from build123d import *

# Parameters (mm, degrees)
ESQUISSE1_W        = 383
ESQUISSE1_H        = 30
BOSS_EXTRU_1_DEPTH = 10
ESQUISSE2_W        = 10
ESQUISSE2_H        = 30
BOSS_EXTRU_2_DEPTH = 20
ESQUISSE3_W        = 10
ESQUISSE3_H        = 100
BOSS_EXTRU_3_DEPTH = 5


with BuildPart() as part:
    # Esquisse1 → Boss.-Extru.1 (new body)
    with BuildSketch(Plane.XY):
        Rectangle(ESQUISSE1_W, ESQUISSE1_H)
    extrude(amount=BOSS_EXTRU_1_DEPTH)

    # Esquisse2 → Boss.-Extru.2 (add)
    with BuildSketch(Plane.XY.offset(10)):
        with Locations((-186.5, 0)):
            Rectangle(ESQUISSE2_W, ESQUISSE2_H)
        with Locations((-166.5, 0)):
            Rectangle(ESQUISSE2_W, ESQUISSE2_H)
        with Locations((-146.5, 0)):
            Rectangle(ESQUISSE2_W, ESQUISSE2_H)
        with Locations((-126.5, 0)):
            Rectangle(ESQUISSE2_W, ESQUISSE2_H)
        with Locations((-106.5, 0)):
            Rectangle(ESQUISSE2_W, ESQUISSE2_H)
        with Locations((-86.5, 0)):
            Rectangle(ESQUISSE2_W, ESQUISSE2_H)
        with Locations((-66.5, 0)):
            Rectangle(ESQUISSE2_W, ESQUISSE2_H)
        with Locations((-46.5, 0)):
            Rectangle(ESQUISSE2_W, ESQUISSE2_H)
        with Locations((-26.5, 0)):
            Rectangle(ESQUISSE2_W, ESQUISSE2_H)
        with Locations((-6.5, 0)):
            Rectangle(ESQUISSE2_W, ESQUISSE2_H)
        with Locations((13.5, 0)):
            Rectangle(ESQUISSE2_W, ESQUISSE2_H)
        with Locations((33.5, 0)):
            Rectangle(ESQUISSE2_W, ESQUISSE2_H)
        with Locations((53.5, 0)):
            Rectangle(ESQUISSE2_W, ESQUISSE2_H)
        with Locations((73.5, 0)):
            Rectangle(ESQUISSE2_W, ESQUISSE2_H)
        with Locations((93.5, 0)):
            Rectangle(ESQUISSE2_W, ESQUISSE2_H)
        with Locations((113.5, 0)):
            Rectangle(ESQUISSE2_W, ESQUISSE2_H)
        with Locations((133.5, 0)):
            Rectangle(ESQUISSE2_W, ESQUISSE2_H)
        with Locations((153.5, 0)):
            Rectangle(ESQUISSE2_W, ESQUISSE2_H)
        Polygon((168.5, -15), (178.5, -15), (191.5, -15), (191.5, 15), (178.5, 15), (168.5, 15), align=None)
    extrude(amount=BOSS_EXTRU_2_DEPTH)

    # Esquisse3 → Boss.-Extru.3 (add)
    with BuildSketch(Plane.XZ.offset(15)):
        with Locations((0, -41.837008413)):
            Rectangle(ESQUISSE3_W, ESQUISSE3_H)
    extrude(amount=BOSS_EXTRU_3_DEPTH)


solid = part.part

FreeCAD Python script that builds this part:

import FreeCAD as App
import Part
import Sketcher
from FreeCAD import Vector
Q = App.Units.Quantity

doc = App.newDocument("Part")
params = doc.addObject("Spreadsheet::Sheet", "Params")
for row, (alias, value) in enumerate([
    ("sketch1_width", "383 mm"),
    ("sketch1_height", "30 mm"),
    ("pad1_length", "10 mm"),
    ("sketch2_width", "10 mm"),
    ("sketch2_width2", "23 mm"),
    ("sketch2_height", "30 mm"),
    ("pad2_length", "20 mm"),
    ("sketch3_width", "10 mm"),
    ("sketch3_height", "100 mm"),
    ("pad3_length", "5 mm"),
], start=1):
    params.set(f"A{row}", alias)
    params.set(f"B{row}", "=" + value)
    params.setAlias(f"B{row}", alias)

body = doc.addObject("PartDesign::Body", "Body")

# Sketch on XY plane
sketch1 = body.newObject("Sketcher::SketchObject", "Sketch")
sketch1.AttachmentSupport = (doc.getObject("XY_Plane"), [""])
sketch1.MapMode = "FlatFace"
sketch1.addGeometry([
    Part.LineSegment(Vector(-192, 15, 0), Vector(-192, -15, 0)),
    Part.LineSegment(Vector(-192, -15, 0), Vector(192, -15, 0)),
    Part.LineSegment(Vector(192, -15, 0), Vector(192, 15, 0)),
    Part.LineSegment(Vector(192, 15, 0), Vector(-192, 15, 0)),
], False)
sketch1.addConstraint([
    Sketcher.Constraint("Coincident", 0, 2, 1, 1),
    Sketcher.Constraint("Coincident", 1, 2, 2, 1),
    Sketcher.Constraint("Coincident", 2, 2, 3, 1),
    Sketcher.Constraint("Coincident", 3, 2, 0, 1),
    Sketcher.Constraint("Vertical", 0),
    Sketcher.Constraint("Horizontal", 1),
    Sketcher.Constraint("Vertical", 2),
    Sketcher.Constraint("Horizontal", 3),
    Sketcher.Constraint("Symmetric", 0, 2, 2, 2, -1, 1),
    Sketcher.Constraint("DistanceX", 1, 1, 1, 2, Q("383 mm")),
    Sketcher.Constraint("DistanceY", 0, 2, 0, 1, Q("30 mm")),
])
sketch1.setExpression("Constraints[9]", "Params.sketch1_width")
sketch1.setExpression("Constraints[10]", "Params.sketch1_height")
pad1 = body.newObject("PartDesign::Pad", "Pad")
pad1.Profile = sketch1
pad1.setExpression("Length", "Params.pad1_length")

# Sketch on XY plane
sketch2 = body.newObject("Sketcher::SketchObject", "Sketch001")
sketch2.AttachmentSupport = (doc.getObject("XY_Plane"), [""])
sketch2.MapMode = "FlatFace"
sketch2.AttachmentOffset = App.Placement(Vector(0, 0, 10), App.Rotation())
sketch2.addGeometry([
    Part.LineSegment(Vector(-192, 15, 0), Vector(-192, -15, 0)),  # 0
    Part.LineSegment(Vector(-192, -15, 0), Vector(-182, -15, 0)),  # 1
    Part.LineSegment(Vector(-182, -15, 0), Vector(-182, 15, 0)),  # 2
    Part.LineSegment(Vector(-182, 15, 0), Vector(-192, 15, 0)),  # 3
    Part.LineSegment(Vector(-172, 15, 0), Vector(-172, -15, 0)),  # 4
    Part.LineSegment(Vector(-172, -15, 0), Vector(-162, -15, 0)),  # 5
    Part.LineSegment(Vector(-162, -15, 0), Vector(-162, 15, 0)),  # 6
    Part.LineSegment(Vector(-162, 15, 0), Vector(-172, 15, 0)),  # 7
    Part.LineSegment(Vector(-152, 15, 0), Vector(-152, -15, 0)),  # 8
    Part.LineSegment(Vector(-152, -15, 0), Vector(-142, -15, 0)),  # 9
    Part.LineSegment(Vector(-142, -15, 0), Vector(-142, 15, 0)),  # 10
    Part.LineSegment(Vector(-142, 15, 0), Vector(-152, 15, 0)),  # 11
    Part.LineSegment(Vector(-132, 15, 0), Vector(-132, -15, 0)),  # 12
    Part.LineSegment(Vector(-132, -15, 0), Vector(-122, -15, 0)),  # 13
    Part.LineSegment(Vector(-122, -15, 0), Vector(-122, 15, 0)),  # 14
    Part.LineSegment(Vector(-122, 15, 0), Vector(-132, 15, 0)),  # 15
    Part.LineSegment(Vector(-112, 15, 0), Vector(-112, -15, 0)),  # 16
    Part.LineSegment(Vector(-112, -15, 0), Vector(-102, -15, 0)),  # 17
    Part.LineSegment(Vector(-102, -15, 0), Vector(-102, 15, 0)),  # 18
    Part.LineSegment(Vector(-102, 15, 0), Vector(-112, 15, 0)),  # 19
    Part.LineSegment(Vector(-92, 15, 0), Vector(-92, -15, 0)),  # 20
    Part.LineSegment(Vector(-92, -15, 0), Vector(-82, -15, 0)),  # 21
    Part.LineSegment(Vector(-82, -15, 0), Vector(-82, 15, 0)),  # 22
    Part.LineSegment(Vector(-82, 15, 0), Vector(-92, 15, 0)),  # 23
    Part.LineSegment(Vector(-72, 15, 0), Vector(-72, -15, 0)),  # 24
    Part.LineSegment(Vector(-72, -15, 0), Vector(-62, -15, 0)),  # 25
    Part.LineSegment(Vector(-62, -15, 0), Vector(-62, 15, 0)),  # 26
    Part.LineSegment(Vector(-62, 15, 0), Vector(-72, 15, 0)),  # 27
    Part.LineSegment(Vector(-52, 15, 0), Vector(-52, -15, 0)),  # 28
    Part.LineSegment(Vector(-52, -15, 0), Vector(-42, -15, 0)),  # 29
    Part.LineSegment(Vector(-42, -15, 0), Vector(-42, 15, 0)),  # 30
    Part.LineSegment(Vector(-42, 15, 0), Vector(-52, 15, 0)),  # 31
    Part.LineSegment(Vector(-32, 15, 0), Vector(-32, -15, 0)),  # 32
    Part.LineSegment(Vector(-32, -15, 0), Vector(-22, -15, 0)),  # 33
    Part.LineSegment(Vector(-22, -15, 0), Vector(-22, 15, 0)),  # 34
    Part.LineSegment(Vector(-22, 15, 0), Vector(-32, 15, 0)),  # 35
    Part.LineSegment(Vector(-12, 15, 0), Vector(-12, -15, 0)),  # 36
    Part.LineSegment(Vector(-12, -15, 0), Vector(-2, -15, 0)),  # 37
    Part.LineSegment(Vector(-2, -15, 0), Vector(-2, 15, 0)),  # 38
    Part.LineSegment(Vector(-2, 15, 0), Vector(-12, 15, 0)),  # 39
    Part.LineSegment(Vector(8, 15, 0), Vector(8, -15, 0)),  # 40
    Part.LineSegment(Vector(8, -15, 0), Vector(18, -15, 0)),  # 41
    Part.LineSegment(Vector(18, -15, 0), Vector(18, 15, 0)),  # 42
    Part.LineSegment(Vector(18, 15, 0), Vector(8, 15, 0)),  # 43
    Part.LineSegment(Vector(28, 15, 0), Vector(28, -15, 0)),  # 44
    Part.LineSegment(Vector(28, -15, 0), Vector(38, -15, 0)),  # 45
    Part.LineSegment(Vector(38, -15, 0), Vector(38, 15, 0)),  # 46
    Part.LineSegment(Vector(38, 15, 0), Vector(28, 15, 0)),  # 47
    Part.LineSegment(Vector(48, 15, 0), Vector(48, -15, 0)),  # 48
    Part.LineSegment(Vector(48, -15, 0), Vector(58, -15, 0)),  # 49
    Part.LineSegment(Vector(58, -15, 0), Vector(58, 15, 0)),  # 50
    Part.LineSegment(Vector(58, 15, 0), Vector(48, 15, 0)),  # 51
    Part.LineSegment(Vector(68, 15, 0), Vector(68, -15, 0)),  # 52
    Part.LineSegment(Vector(68, -15, 0), Vector(78, -15, 0)),  # 53
    Part.LineSegment(Vector(78, -15, 0), Vector(78, 15, 0)),  # 54
    Part.LineSegment(Vector(78, 15, 0), Vector(68, 15, 0)),  # 55
    Part.LineSegment(Vector(88, 15, 0), Vector(88, -15, 0)),  # 56
    Part.LineSegment(Vector(88, -15, 0), Vector(98, -15, 0)),  # 57
    Part.LineSegment(Vector(98, -15, 0), Vector(98, 15, 0)),  # 58
    Part.LineSegment(Vector(98, 15, 0), Vector(88, 15, 0)),  # 59
    Part.LineSegment(Vector(108, 15, 0), Vector(108, -15, 0)),  # 60
    Part.LineSegment(Vector(108, -15, 0), Vector(118, -15, 0)),  # 61
    Part.LineSegment(Vector(118, -15, 0), Vector(118, 15, 0)),  # 62
    Part.LineSegment(Vector(118, 15, 0), Vector(108, 15, 0)),  # 63
    Part.LineSegment(Vector(128, 15, 0), Vector(128, -15, 0)),  # 64
    Part.LineSegment(Vector(128, -15, 0), Vector(138, -15, 0)),  # 65
    Part.LineSegment(Vector(138, -15, 0), Vector(138, 15, 0)),  # 66
    Part.LineSegment(Vector(138, 15, 0), Vector(128, 15, 0)),  # 67
    Part.LineSegment(Vector(148, 15, 0), Vector(148, -15, 0)),  # 68
    Part.LineSegment(Vector(148, -15, 0), Vector(158, -15, 0)),  # 69
    Part.LineSegment(Vector(158, -15, 0), Vector(158, 15, 0)),  # 70
    Part.LineSegment(Vector(158, 15, 0), Vector(148, 15, 0)),  # 71
    Part.LineSegment(Vector(168, -15, 0), Vector(192, -15, 0)),  # 72
    Part.LineSegment(Vector(192, -15, 0), Vector(192, 15, 0)),  # 73
    Part.LineSegment(Vector(192, 15, 0), Vector(168, 15, 0)),  # 74
    Part.LineSegment(Vector(168, 15, 0), Vector(168, -15, 0)),  # 75
], False)
sketch2.addConstraint([
    Sketcher.Constraint("Coincident", 0, 2, 1, 1),
    Sketcher.Constraint("Coincident", 1, 2, 2, 1),
    Sketcher.Constraint("Coincident", 2, 2, 3, 1),
    Sketcher.Constraint("Coincident", 3, 2, 0, 1),
    Sketcher.Constraint("Coincident", 4, 2, 5, 1),
    Sketcher.Constraint("Coincident", 5, 2, 6, 1),
    Sketcher.Constraint("Coincident", 6, 2, 7, 1),
    Sketcher.Constraint("Coincident", 7, 2, 4, 1),
    Sketcher.Constraint("Coincident", 8, 2, 9, 1),
    Sketcher.Constraint("Coincident", 9, 2, 10, 1),
    Sketcher.Constraint("Coincident", 10, 2, 11, 1),
    Sketcher.Constraint("Coincident", 11, 2, 8, 1),
    Sketcher.Constraint("Coincident", 12, 2, 13, 1),
    Sketcher.Constraint("Coincident", 13, 2, 14, 1),
    Sketcher.Constraint("Coincident", 14, 2, 15, 1),
    Sketcher.Constraint("Coincident", 15, 2, 12, 1),
    Sketcher.Constraint("Coincident", 16, 2, 17, 1),
    Sketcher.Constraint("Coincident", 17, 2, 18, 1),
    Sketcher.Constraint("Coincident", 18, 2, 19, 1),
    Sketcher.Constraint("Coincident", 19, 2, 16, 1),
    Sketcher.Constraint("Coincident", 20, 2, 21, 1),
    Sketcher.Constraint("Coincident", 21, 2, 22, 1),
    Sketcher.Constraint("Coincident", 22, 2, 23, 1),
    Sketcher.Constraint("Coincident", 23, 2, 20, 1),
    Sketcher.Constraint("Coincident", 24, 2, 25, 1),
    Sketcher.Constraint("Coincident", 25, 2, 26, 1),
    Sketcher.Constraint("Coincident", 26, 2, 27, 1),
    Sketcher.Constraint("Coincident", 27, 2, 24, 1),
    Sketcher.Constraint("Coincident", 28, 2, 29, 1),
    Sketcher.Constraint("Coincident", 29, 2, 30, 1),
    Sketcher.Constraint("Coincident", 30, 2, 31, 1),
    Sketcher.Constraint("Coincident", 31, 2, 28, 1),
    Sketcher.Constraint("Coincident", 32, 2, 33, 1),
    Sketcher.Constraint("Coincident", 33, 2, 34, 1),
    Sketcher.Constraint("Coincident", 34, 2, 35, 1),
    Sketcher.Constraint("Coincident", 35, 2, 32, 1),
    Sketcher.Constraint("Coincident", 36, 2, 37, 1),
    Sketcher.Constraint("Coincident", 37, 2, 38, 1),
    Sketcher.Constraint("Coincident", 38, 2, 39, 1),
    Sketcher.Constraint("Coincident", 39, 2, 36, 1),
    Sketcher.Constraint("Coincident", 40, 2, 41, 1),
    Sketcher.Constraint("Coincident", 41, 2, 42, 1),
    Sketcher.Constraint("Coincident", 42, 2, 43, 1),
    Sketcher.Constraint("Coincident", 43, 2, 40, 1),
    Sketcher.Constraint("Coincident", 44, 2, 45, 1),
    Sketcher.Constraint("Coincident", 45, 2, 46, 1),
    Sketcher.Constraint("Coincident", 46, 2, 47, 1),
    Sketcher.Constraint("Coincident", 47, 2, 44, 1),
    Sketcher.Constraint("Coincident", 48, 2, 49, 1),
    Sketcher.Constraint("Coincident", 49, 2, 50, 1),
    Sketcher.Constraint("Coincident", 50, 2, 51, 1),
    Sketcher.Constraint("Coincident", 51, 2, 48, 1),
    Sketcher.Constraint("Coincident", 52, 2, 53, 1),
    Sketcher.Constraint("Coincident", 53, 2, 54, 1),
    Sketcher.Constraint("Coincident", 54, 2, 55, 1),
    Sketcher.Constraint("Coincident", 55, 2, 52, 1),
    Sketcher.Constraint("Coincident", 56, 2, 57, 1),
    Sketcher.Constraint("Coincident", 57, 2, 58, 1),
    Sketcher.Constraint("Coincident", 58, 2, 59, 1),
    Sketcher.Constraint("Coincident", 59, 2, 56, 1),
    Sketcher.Constraint("Coincident", 60, 2, 61, 1),
    Sketcher.Constraint("Coincident", 61, 2, 62, 1),
    Sketcher.Constraint("Coincident", 62, 2, 63, 1),
    Sketcher.Constraint("Coincident", 63, 2, 60, 1),
    Sketcher.Constraint("Coincident", 64, 2, 65, 1),
    Sketcher.Constraint("Coincident", 65, 2, 66, 1),
    Sketcher.Constraint("Coincident", 66, 2, 67, 1),
    Sketcher.Constraint("Coincident", 67, 2, 64, 1),
    Sketcher.Constraint("Coincident", 68, 2, 69, 1),
    Sketcher.Constraint("Coincident", 69, 2, 70, 1),
    Sketcher.Constraint("Coincident", 70, 2, 71, 1),
    Sketcher.Constraint("Coincident", 71, 2, 68, 1),
    Sketcher.Constraint("Coincident", 72, 2, 73, 1),
    Sketcher.Constraint("Coincident", 73, 2, 74, 1),
    Sketcher.Constraint("Coincident", 74, 2, 75, 1),
    Sketcher.Constraint("Coincident", 75, 2, 72, 1),
    Sketcher.Constraint("Vertical", 0),
    Sketcher.Constraint("Horizontal", 1),
    Sketcher.Constraint("Vertical", 2),
    Sketcher.Constraint("Horizontal", 3),
    Sketcher.Constraint("Vertical", 4),
    Sketcher.Constraint("Horizontal", 5),
    Sketcher.Constraint("Vertical", 6),
    Sketcher.Constraint("Horizontal", 7),
    Sketcher.Constraint("Vertical", 8),
    Sketcher.Constraint("Horizontal", 9),
    Sketcher.Constraint("Vertical", 10),
    Sketcher.Constraint("Horizontal", 11),
    Sketcher.Constraint("Vertical", 12),
    Sketcher.Constraint("Horizontal", 13),
    Sketcher.Constraint("Vertical", 14),
    Sketcher.Constraint("Horizontal", 15),
    Sketcher.Constraint("Vertical", 16),
    Sketcher.Constraint("Horizontal", 17),
    Sketcher.Constraint("Vertical", 18),
    Sketcher.Constraint("Horizontal", 19),
    Sketcher.Constraint("Vertical", 20),
    Sketcher.Constraint("Horizontal", 21),
    Sketcher.Constraint("Vertical", 22),
    Sketcher.Constraint("Horizontal", 23),
    Sketcher.Constraint("Vertical", 24),
    Sketcher.Constraint("Horizontal", 25),
    Sketcher.Constraint("Vertical", 26),
    Sketcher.Constraint("Horizontal", 27),
    Sketcher.Constraint("Vertical", 28),
    Sketcher.Constraint("Horizontal", 29),
    Sketcher.Constraint("Vertical", 30),
    Sketcher.Constraint("Horizontal", 31),
    Sketcher.Constraint("Vertical", 32),
    Sketcher.Constraint("Horizontal", 33),
    Sketcher.Constraint("Vertical", 34),
    Sketcher.Constraint("Horizontal", 35),
    Sketcher.Constraint("Vertical", 36),
    Sketcher.Constraint("Horizontal", 37),
    Sketcher.Constraint("Vertical", 38),
    Sketcher.Constraint("Horizontal", 39),
    Sketcher.Constraint("Vertical", 40),
    Sketcher.Constraint("Horizontal", 41),
    Sketcher.Constraint("Vertical", 42),
    Sketcher.Constraint("Horizontal", 43),
    Sketcher.Constraint("Vertical", 44),
    Sketcher.Constraint("Horizontal", 45),
    Sketcher.Constraint("Vertical", 46),
    Sketcher.Constraint("Horizontal", 47),
    Sketcher.Constraint("Vertical", 48),
    Sketcher.Constraint("Horizontal", 49),
    Sketcher.Constraint("Vertical", 50),
    Sketcher.Constraint("Horizontal", 51),
    Sketcher.Constraint("Vertical", 52),
    Sketcher.Constraint("Horizontal", 53),
    Sketcher.Constraint("Vertical", 54),
    Sketcher.Constraint("Horizontal", 55),
    Sketcher.Constraint("Vertical", 56),
    Sketcher.Constraint("Horizontal", 57),
    Sketcher.Constraint("Vertical", 58),
    Sketcher.Constraint("Horizontal", 59),
    Sketcher.Constraint("Vertical", 60),
    Sketcher.Constraint("Horizontal", 61),
    Sketcher.Constraint("Vertical", 62),
    Sketcher.Constraint("Horizontal", 63),
    Sketcher.Constraint("Vertical", 64),
    Sketcher.Constraint("Horizontal", 65),
    Sketcher.Constraint("Vertical", 66),
    Sketcher.Constraint("Horizontal", 67),
    Sketcher.Constraint("Vertical", 68),
    Sketcher.Constraint("Horizontal", 69),
    Sketcher.Constraint("Vertical", 70),
    Sketcher.Constraint("Horizontal", 71),
    Sketcher.Constraint("Horizontal", 72),
    Sketcher.Constraint("Vertical", 73),
    Sketcher.Constraint("Horizontal", 74),
    Sketcher.Constraint("Vertical", 75),
    Sketcher.Constraint("Symmetric", 3, 2, 72, 2, -1, 1),
    Sketcher.Constraint("Horizontal", 1, 2, 4, 2),
    Sketcher.Constraint("Horizontal", 3, 2, 6, 2),
    Sketcher.Constraint("Horizontal", 5, 2, 8, 2),
    Sketcher.Constraint("Horizontal", 7, 2, 10, 2),
    Sketcher.Constraint("Horizontal", 9, 2, 12, 2),
    Sketcher.Constraint("Horizontal", 11, 2, 14, 2),
    Sketcher.Constraint("Horizontal", 13, 2, 16, 2),
    Sketcher.Constraint("Horizontal", 15, 2, 18, 2),
    Sketcher.Constraint("Horizontal", 17, 2, 20, 2),
    Sketcher.Constraint("Horizontal", 19, 2, 22, 2),
    Sketcher.Constraint("Horizontal", 21, 2, 24, 2),
    Sketcher.Constraint("Horizontal", 23, 2, 26, 2),
    Sketcher.Constraint("Horizontal", 25, 2, 28, 2),
    Sketcher.Constraint("Horizontal", 27, 2, 30, 2),
    Sketcher.Constraint("Horizontal", 29, 2, 32, 2),
    Sketcher.Constraint("Horizontal", 31, 2, 34, 2),
    Sketcher.Constraint("Horizontal", 33, 2, 36, 2),
    Sketcher.Constraint("Horizontal", 35, 2, 38, 2),
    Sketcher.Constraint("Horizontal", 37, 2, 40, 2),
    Sketcher.Constraint("Horizontal", 39, 2, 42, 2),
    Sketcher.Constraint("Horizontal", 41, 2, 44, 2),
    Sketcher.Constraint("Horizontal", 43, 2, 46, 2),
    Sketcher.Constraint("Horizontal", 45, 2, 48, 2),
    Sketcher.Constraint("Horizontal", 47, 2, 50, 2),
    Sketcher.Constraint("Horizontal", 49, 2, 52, 2),
    Sketcher.Constraint("Horizontal", 51, 2, 54, 2),
    Sketcher.Constraint("Horizontal", 53, 2, 56, 2),
    Sketcher.Constraint("Horizontal", 55, 2, 58, 2),
    Sketcher.Constraint("Horizontal", 57, 2, 60, 2),
    Sketcher.Constraint("Horizontal", 59, 2, 62, 2),
    Sketcher.Constraint("Horizontal", 61, 2, 64, 2),
    Sketcher.Constraint("Horizontal", 63, 2, 66, 2),
    Sketcher.Constraint("Horizontal", 65, 2, 68, 2),
    Sketcher.Constraint("Horizontal", 67, 2, 70, 2),
    Sketcher.Constraint("Horizontal", 69, 2, 72, 2),
    Sketcher.Constraint("Horizontal", 71, 2, 73, 2),
    Sketcher.Constraint("Equal", 3, 5),
    Sketcher.Constraint("Equal", 7, 9),
    Sketcher.Constraint("Equal", 11, 13),
    Sketcher.Constraint("Equal", 15, 17),
    Sketcher.Constraint("Equal", 19, 21),
    Sketcher.Constraint("Equal", 23, 25),
    Sketcher.Constraint("Equal", 27, 29),
    Sketcher.Constraint("Equal", 31, 33),
    Sketcher.Constraint("Equal", 35, 37),
    Sketcher.Constraint("Equal", 39, 41),
    Sketcher.Constraint("Equal", 43, 45),
    Sketcher.Constraint("Equal", 47, 49),
    Sketcher.Constraint("Equal", 51, 53),
    Sketcher.Constraint("Equal", 55, 57),
    Sketcher.Constraint("Equal", 59, 61),
    Sketcher.Constraint("Equal", 63, 65),
    Sketcher.Constraint("Equal", 67, 69),
    Sketcher.Constraint("DistanceX", 1, 1, 1, 2, Q("10 mm")),
    Sketcher.Constraint("DistanceX", 72, 1, 72, 2, Q("23 mm")),
    Sketcher.Constraint("DistanceY", 0, 2, 0, 1, Q("30 mm")),
    Sketcher.Constraint("DistanceX", 0, 2, -1, 1, Q("191.5 mm")),
    Sketcher.Constraint("DistanceX", 4, 2, -1, 1, Q("171.5 mm")),
    Sketcher.Constraint("DistanceX", 8, 2, -1, 1, Q("151.5 mm")),
    Sketcher.Constraint("DistanceX", 12, 2, -1, 1, Q("131.5 mm")),
    Sketcher.Constraint("DistanceX", 16, 2, -1, 1, Q("111.5 mm")),
    Sketcher.Constraint("DistanceX", 20, 2, -1, 1, Q("91.5 mm")),
    Sketcher.Constraint("DistanceX", 24, 2, -1, 1, Q("71.5 mm")),
    Sketcher.Constraint("DistanceX", 28, 2, -1, 1, Q("51.5 mm")),
    Sketcher.Constraint("DistanceX", 32, 2, -1, 1, Q("31.5 mm")),
    Sketcher.Constraint("DistanceX", 36, 2, -1, 1, Q("11.5 mm")),
    Sketcher.Constraint("DistanceX", -1, 1, 40, 2, Q("8.5 mm")),
    Sketcher.Constraint("DistanceX", -1, 1, 44, 2, Q("28.5 mm")),
    Sketcher.Constraint("DistanceX", -1, 1, 48, 2, Q("48.5 mm")),
    Sketcher.Constraint("DistanceX", -1, 1, 52, 2, Q("68.5 mm")),
    Sketcher.Constraint("DistanceX", -1, 1, 56, 2, Q("88.5 mm")),
    Sketcher.Constraint("DistanceX", -1, 1, 60, 2, Q("108.5 mm")),
    Sketcher.Constraint("DistanceX", -1, 1, 64, 2, Q("128.5 mm")),
    Sketcher.Constraint("DistanceX", -1, 1, 68, 2, Q("148.5 mm")),
])
sketch2.setExpression("Constraints[206]", "Params.sketch2_width")
sketch2.setExpression("Constraints[207]", "Params.sketch2_width2")
sketch2.setExpression("Constraints[208]", "Params.sketch2_height")
pad2 = body.newObject("PartDesign::Pad", "Pad001")
pad2.Profile = sketch2
pad2.setExpression("Length", "Params.pad2_length")

# Sketch on XZ plane
sketch3 = body.newObject("Sketcher::SketchObject", "Sketch002")
sketch3.AttachmentSupport = (doc.getObject("XZ_Plane"), [""])
sketch3.MapMode = "FlatFace"
sketch3.AttachmentOffset = App.Placement(Vector(0, 0, 15), App.Rotation())
sketch3.addGeometry([
    Part.LineSegment(Vector(-5, 8, 0), Vector(-5, -92, 0)),
    Part.LineSegment(Vector(-5, -92, 0), Vector(5, -92, 0)),
    Part.LineSegment(Vector(5, -92, 0), Vector(5, 8, 0)),
    Part.LineSegment(Vector(5, 8, 0), Vector(-5, 8, 0)),
], False)
sketch3.addConstraint([
    Sketcher.Constraint("Coincident", 0, 2, 1, 1),
    Sketcher.Constraint("Coincident", 1, 2, 2, 1),
    Sketcher.Constraint("Coincident", 2, 2, 3, 1),
    Sketcher.Constraint("Coincident", 3, 2, 0, 1),
    Sketcher.Constraint("Vertical", 0),
    Sketcher.Constraint("Horizontal", 1),
    Sketcher.Constraint("Vertical", 2),
    Sketcher.Constraint("Horizontal", 3),
    Sketcher.Constraint("DistanceX", 1, 1, 1, 2, Q("10 mm")),
    Sketcher.Constraint("DistanceY", 0, 2, 0, 1, Q("100 mm")),
    Sketcher.Constraint("DistanceX", 0, 2, -1, 1, Q("5 mm")),
    Sketcher.Constraint("DistanceY", 0, 2, -1, 1, Q("91.837008 mm")),
])
sketch3.setExpression("Constraints[8]", "Params.sketch3_width")
sketch3.setExpression("Constraints[9]", "Params.sketch3_height")
pad3 = body.newObject("PartDesign::Pad", "Pad002")
pad3.Profile = sketch3
pad3.setExpression("Length", "Params.pad3_length")

doc.recompute()
